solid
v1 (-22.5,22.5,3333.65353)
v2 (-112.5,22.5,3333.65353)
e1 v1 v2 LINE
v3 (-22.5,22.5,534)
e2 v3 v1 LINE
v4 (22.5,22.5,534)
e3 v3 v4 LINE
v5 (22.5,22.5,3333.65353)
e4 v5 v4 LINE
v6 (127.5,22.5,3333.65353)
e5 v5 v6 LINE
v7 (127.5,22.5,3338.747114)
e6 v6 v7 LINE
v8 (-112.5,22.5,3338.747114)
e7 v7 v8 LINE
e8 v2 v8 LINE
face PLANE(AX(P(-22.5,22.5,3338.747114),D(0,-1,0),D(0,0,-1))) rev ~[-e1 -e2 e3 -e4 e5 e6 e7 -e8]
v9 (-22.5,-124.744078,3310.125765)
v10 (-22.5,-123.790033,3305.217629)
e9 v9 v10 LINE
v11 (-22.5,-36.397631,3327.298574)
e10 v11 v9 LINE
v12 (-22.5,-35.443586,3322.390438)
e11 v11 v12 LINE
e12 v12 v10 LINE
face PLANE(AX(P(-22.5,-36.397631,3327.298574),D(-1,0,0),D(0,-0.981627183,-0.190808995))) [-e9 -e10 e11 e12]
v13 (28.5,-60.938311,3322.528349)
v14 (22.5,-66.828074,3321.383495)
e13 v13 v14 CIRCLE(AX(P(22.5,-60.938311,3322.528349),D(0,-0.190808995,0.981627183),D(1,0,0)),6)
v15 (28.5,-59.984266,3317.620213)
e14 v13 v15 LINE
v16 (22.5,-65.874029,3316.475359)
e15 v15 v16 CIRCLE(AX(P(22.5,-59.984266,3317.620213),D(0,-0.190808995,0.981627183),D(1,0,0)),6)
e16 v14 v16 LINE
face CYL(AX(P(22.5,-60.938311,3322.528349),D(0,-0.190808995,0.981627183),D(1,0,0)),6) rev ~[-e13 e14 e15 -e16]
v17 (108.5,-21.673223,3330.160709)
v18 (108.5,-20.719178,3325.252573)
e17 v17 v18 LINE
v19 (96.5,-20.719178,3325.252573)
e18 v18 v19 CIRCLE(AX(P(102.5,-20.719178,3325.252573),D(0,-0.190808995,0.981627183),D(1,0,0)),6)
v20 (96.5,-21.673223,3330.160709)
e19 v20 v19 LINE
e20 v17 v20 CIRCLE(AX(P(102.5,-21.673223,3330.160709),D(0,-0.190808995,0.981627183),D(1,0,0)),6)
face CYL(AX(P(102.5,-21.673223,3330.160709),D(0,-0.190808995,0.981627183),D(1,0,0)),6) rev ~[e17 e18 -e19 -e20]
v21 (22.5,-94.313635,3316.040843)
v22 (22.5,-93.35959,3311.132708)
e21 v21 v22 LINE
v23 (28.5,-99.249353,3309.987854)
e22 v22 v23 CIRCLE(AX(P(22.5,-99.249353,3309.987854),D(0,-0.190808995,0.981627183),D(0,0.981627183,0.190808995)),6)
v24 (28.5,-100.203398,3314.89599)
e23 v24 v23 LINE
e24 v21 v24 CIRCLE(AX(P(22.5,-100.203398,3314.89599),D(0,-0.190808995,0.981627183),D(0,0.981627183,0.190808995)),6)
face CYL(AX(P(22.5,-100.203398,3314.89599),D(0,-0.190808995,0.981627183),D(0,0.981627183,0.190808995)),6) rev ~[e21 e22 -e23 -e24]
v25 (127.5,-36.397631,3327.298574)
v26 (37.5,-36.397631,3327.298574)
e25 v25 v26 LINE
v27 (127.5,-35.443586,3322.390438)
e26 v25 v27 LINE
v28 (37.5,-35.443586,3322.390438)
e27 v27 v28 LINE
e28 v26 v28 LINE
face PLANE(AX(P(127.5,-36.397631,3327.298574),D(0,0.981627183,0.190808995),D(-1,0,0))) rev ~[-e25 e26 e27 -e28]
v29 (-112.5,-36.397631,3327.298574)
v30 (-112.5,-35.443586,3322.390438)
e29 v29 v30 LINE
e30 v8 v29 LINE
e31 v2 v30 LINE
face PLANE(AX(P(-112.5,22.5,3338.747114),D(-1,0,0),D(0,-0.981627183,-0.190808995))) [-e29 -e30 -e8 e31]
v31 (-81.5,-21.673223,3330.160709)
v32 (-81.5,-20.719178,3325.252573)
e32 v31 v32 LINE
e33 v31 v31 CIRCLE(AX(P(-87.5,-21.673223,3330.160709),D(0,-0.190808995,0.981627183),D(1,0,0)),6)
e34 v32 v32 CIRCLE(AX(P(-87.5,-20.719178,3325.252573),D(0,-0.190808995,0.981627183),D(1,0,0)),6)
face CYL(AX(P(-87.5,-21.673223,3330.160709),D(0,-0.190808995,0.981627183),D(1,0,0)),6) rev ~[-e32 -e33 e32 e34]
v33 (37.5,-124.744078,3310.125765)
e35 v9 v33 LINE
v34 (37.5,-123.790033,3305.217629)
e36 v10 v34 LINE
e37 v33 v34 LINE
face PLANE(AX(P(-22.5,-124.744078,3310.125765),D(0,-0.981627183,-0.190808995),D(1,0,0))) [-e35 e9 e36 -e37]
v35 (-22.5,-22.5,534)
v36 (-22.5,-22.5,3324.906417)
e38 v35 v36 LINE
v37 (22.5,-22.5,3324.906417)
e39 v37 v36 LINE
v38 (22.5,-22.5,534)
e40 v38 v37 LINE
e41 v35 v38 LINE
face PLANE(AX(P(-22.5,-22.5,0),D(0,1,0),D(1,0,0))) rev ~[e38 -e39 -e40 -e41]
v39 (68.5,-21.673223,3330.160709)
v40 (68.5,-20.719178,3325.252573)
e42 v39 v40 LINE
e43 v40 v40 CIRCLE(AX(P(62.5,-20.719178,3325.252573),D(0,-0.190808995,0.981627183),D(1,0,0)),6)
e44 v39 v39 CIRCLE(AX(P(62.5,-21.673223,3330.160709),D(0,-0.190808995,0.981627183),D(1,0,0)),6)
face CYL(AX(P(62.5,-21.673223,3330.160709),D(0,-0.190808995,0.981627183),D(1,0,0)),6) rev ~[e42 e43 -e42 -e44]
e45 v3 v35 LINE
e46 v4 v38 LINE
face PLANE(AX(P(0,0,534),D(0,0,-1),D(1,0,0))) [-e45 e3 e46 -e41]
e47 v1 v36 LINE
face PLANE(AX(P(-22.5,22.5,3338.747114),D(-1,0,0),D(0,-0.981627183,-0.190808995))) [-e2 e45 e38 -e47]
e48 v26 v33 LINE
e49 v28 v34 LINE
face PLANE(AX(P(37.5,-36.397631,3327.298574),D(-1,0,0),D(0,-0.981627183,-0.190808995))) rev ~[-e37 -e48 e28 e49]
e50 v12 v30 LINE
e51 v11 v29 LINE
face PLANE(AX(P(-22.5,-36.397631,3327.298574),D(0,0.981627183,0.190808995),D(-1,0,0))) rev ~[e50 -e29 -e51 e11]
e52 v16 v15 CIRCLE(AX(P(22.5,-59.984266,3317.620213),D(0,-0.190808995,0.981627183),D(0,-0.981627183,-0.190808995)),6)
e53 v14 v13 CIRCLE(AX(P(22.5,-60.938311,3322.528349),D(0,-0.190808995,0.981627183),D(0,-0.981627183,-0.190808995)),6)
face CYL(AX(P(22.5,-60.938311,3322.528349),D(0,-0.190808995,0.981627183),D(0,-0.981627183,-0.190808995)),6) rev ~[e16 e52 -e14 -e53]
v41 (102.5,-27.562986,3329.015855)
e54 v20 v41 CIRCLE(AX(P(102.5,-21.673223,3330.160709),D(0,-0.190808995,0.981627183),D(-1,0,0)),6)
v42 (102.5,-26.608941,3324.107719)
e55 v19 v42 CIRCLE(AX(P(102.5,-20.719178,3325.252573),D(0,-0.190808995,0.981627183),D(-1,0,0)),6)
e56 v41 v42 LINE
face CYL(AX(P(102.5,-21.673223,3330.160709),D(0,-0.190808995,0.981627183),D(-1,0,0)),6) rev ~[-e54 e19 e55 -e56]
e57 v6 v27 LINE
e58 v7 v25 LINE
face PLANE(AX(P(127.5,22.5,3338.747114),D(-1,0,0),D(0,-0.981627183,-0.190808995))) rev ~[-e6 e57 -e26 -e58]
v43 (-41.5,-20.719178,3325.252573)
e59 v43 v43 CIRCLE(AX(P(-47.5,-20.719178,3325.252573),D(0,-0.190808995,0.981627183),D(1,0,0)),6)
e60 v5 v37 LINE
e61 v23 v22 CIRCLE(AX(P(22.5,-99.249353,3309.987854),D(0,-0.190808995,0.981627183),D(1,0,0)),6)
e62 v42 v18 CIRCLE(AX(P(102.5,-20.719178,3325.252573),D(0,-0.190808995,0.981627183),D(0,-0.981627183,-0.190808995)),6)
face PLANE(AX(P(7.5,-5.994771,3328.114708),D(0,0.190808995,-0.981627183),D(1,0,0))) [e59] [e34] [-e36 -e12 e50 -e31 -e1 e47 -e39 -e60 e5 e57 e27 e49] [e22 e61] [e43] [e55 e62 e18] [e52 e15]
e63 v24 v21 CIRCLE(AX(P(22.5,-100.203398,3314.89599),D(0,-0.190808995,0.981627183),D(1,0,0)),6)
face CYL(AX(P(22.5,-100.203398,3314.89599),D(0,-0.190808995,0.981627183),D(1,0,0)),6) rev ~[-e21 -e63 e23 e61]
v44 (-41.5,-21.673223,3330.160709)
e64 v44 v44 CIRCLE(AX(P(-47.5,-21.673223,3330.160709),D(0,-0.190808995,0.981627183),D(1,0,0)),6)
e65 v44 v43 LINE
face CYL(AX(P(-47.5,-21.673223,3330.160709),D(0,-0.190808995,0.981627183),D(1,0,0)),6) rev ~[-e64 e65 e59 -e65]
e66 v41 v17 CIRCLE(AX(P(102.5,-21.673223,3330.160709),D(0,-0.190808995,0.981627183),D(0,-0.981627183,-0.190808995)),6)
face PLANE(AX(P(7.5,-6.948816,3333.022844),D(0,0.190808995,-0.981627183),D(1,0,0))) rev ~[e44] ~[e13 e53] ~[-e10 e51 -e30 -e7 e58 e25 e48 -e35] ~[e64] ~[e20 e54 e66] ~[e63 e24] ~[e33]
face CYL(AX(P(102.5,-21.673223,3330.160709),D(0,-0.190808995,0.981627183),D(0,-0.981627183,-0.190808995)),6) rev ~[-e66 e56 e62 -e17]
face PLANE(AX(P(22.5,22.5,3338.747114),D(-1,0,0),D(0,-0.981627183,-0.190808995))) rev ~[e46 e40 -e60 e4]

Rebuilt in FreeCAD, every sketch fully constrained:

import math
import FreeCAD as App
import Part
import Sketcher
Q = App.Units.Quantity

doc = App.newDocument("Part")
body = doc.addObject("PartDesign::Body", "Body")

# Sketch on XY plane
sketch1 = body.newObject("Sketcher::SketchObject", "Sketch")
sketch1.AttachmentSupport = (doc.getObject("XY_Plane"), [""])
sketch1.MapMode = "FlatFace"
sketch1.addGeometry([
    Part.LineSegment(App.Vector(-22, 22, 0), App.Vector(-22, -22, 0)),
    Part.LineSegment(App.Vector(-22, -22, 0), App.Vector(22, -22, 0)),
    Part.LineSegment(App.Vector(22, -22, 0), App.Vector(22, 22, 0)),
    Part.LineSegment(App.Vector(22, 22, 0), App.Vector(-22, 22, 0)),
], False)
sketch1.addConstraint([
    Sketcher.Constraint("Coincident", 0, 2, 1, 1),
    Sketcher.Constraint("Coincident", 1, 2, 2, 1),
    Sketcher.Constraint("Coincident", 2, 2, 3, 1),
    Sketcher.Constraint("Coincident", 3, 2, 0, 1),
    Sketcher.Constraint("Vertical", 0),
    Sketcher.Constraint("Horizontal", 1),
    Sketcher.Constraint("Vertical", 2),
    Sketcher.Constraint("Horizontal", 3),
    Sketcher.Constraint("Symmetric", 0, 2, 2, 2, -1, 1),
    Sketcher.Constraint("Equal", 3, 0),
    Sketcher.Constraint("DistanceX", 1, 1, 1, 2, Q("45 mm")),
])
pad1 = body.newObject("PartDesign::Pad", "Pad")
pad1.Profile = sketch1
pad1.Length = 3330

# Sketch on an angled plane
sketch2 = body.newObject("Sketcher::SketchObject", "Sketch001")
sketch2.Placement = App.Placement(App.Vector(0, -624.53916, 3212.975442), App.Rotation(App.Vector(1, 0, 0), App.Vector(0, -0.981627183, -0.190808995), App.Vector(0, 0.190808995, -0.981627183), "ZXY"))
sketch2.addGeometry([
    Part.LineSegment(App.Vector(-22, -613, 0), App.Vector(-22, -659, 0)),
    Part.LineSegment(App.Vector(-22, -659, 0), App.Vector(22, -659, 0)),
    Part.LineSegment(App.Vector(22, -659, 0), App.Vector(22, -613, 0)),
    Part.LineSegment(App.Vector(22, -613, 0), App.Vector(-22, -613, 0)),
], False)
sketch2.addConstraint([
    Sketcher.Constraint("Coincident", 0, 2, 1, 1),
    Sketcher.Constraint("Coincident", 1, 2, 2, 1),
    Sketcher.Constraint("Coincident", 2, 2, 3, 1),
    Sketcher.Constraint("Coincident", 3, 2, 0, 1),
    Sketcher.Constraint("Vertical", 0),
    Sketcher.Constraint("Horizontal", 1),
    Sketcher.Constraint("Vertical", 2),
    Sketcher.Constraint("Horizontal", 3),
    Sketcher.Constraint("DistanceX", 1, 1, 1, 2, Q("45 mm")),
    Sketcher.Constraint("DistanceX", 0, 2, -1, 1, Q("22.5 mm")),
    Sketcher.Constraint("DistanceY", 0, 2, 0, 1, Q("45.842251 mm")),
    Sketcher.Constraint("DistanceY", 0, 2, -1, 1, Q("659.149594 mm")),
])
pad2 = body.newObject("PartDesign::Pad", "Pad001")
pad2.Profile = sketch2
pad2.Length = 25

# Sketch on an angled plane
sketch3 = body.newObject("Sketcher::SketchObject", "Sketch002")
sketch3.Placement = App.Placement(App.Vector(0, -624.53916, 3212.975442), App.Rotation(App.Vector(1, 0, 0), App.Vector(0, -0.981627183, -0.190808995), App.Vector(0, 0.190808995, -0.981627183), "ZXY"))
sketch3.addGeometry([
    Part.LineSegment(App.Vector(-112, -599, 0), App.Vector(-112, -659, 0)),  # 0
    Part.LineSegment(App.Vector(-112, -659, 0), App.Vector(128, -659, 0)),  # 1
    Part.LineSegment(App.Vector(128, -659, 0), App.Vector(128, -599, 0)),  # 2
    Part.LineSegment(App.Vector(128, -599, 0), App.Vector(38, -599, 0)),  # 3
    Part.LineSegment(App.Vector(38, -599, 0), App.Vector(38, -509, 0)),  # 4
    Part.LineSegment(App.Vector(38, -509, 0), App.Vector(-22, -509, 0)),  # 5
    Part.LineSegment(App.Vector(-22, -509, 0), App.Vector(-22, -599, 0)),  # 6
    Part.LineSegment(App.Vector(-22, -599, 0), App.Vector(-112, -599, 0)),  # 7
], False)
sketch3.addConstraint([
    Sketcher.Constraint("Coincident", 0, 2, 1, 1),
    Sketcher.Constraint("Coincident", 1, 2, 2, 1),
    Sketcher.Constraint("Coincident", 2, 2, 3, 1),
    Sketcher.Constraint("Coincident", 3, 2, 4, 1),
    Sketcher.Constraint("Coincident", 4, 2, 5, 1),
    Sketcher.Constraint("Coincident", 5, 2, 6, 1),
    Sketcher.Constraint("Coincident", 6, 2, 7, 1),
    Sketcher.Constraint("Coincident", 7, 2, 0, 1),
    Sketcher.Constraint("Vertical", 0),
    Sketcher.Constraint("Horizontal", 1),
    Sketcher.Constraint("Vertical", 2),
    Sketcher.Constraint("Horizontal", 3),
    Sketcher.Constraint("Vertical", 4),
    Sketcher.Constraint("Horizontal", 5),
    Sketcher.Constraint("Vertical", 6),
    Sketcher.Constraint("Horizontal", 7),
    Sketcher.Constraint("Horizontal", 3, 2, 6, 2),
    Sketcher.Constraint("Equal", 3, 7),
    Sketcher.Constraint("Equal", 5, 0),
    Sketcher.Constraint("Equal", 7, 4),
    Sketcher.Constraint("DistanceX", 1, 1, 1, 2, Q("240 mm")),
    Sketcher.Constraint("DistanceX", 3, 2, 3, 1, Q("90 mm")),
    Sketcher.Constraint("DistanceX", 0, 2, -1, 1, Q("112.5 mm")),
    Sketcher.Constraint("DistanceY", 0, 2, -1, 1, Q("659.149594 mm")),
])
pad3 = body.newObject("PartDesign::Pad", "Pad002")
pad3.Profile = sketch3
pad3.Length = 5

# Sketch on an angled plane
sketch4 = body.newObject("Sketcher::SketchObject", "Sketch003")
sketch4.Placement = App.Placement(App.Vector(0, -624.53916, 3212.975442), App.Rotation(App.Vector(1, 0, 0), App.Vector(0, 0.981627183, 0.190808995), App.Vector(0, -0.190808995, 0.981627183), "ZXY"))
sketch4.addGeometry([
    Part.ArcOfCircle(Part.Circle(App.Vector(22, 534, 0), App.Vector(0, 0, 1), 6), math.radians(90), math.radians(360)),  # 0
    Part.ArcOfCircle(Part.Circle(App.Vector(22, 534, 0), App.Vector(0, 0, 1), 6), math.radians(0), math.radians(90)),  # 1
    Part.ArcOfCircle(Part.Circle(App.Vector(22, 574, 0), App.Vector(0, 0, 1), 6), math.radians(0), math.radians(270)),  # 2
    Part.ArcOfCircle(Part.Circle(App.Vector(22, 574, 0), App.Vector(0, 0, 1), 6), math.radians(-90), math.radians(0)),  # 3
    Part.ArcOfCircle(Part.Circle(App.Vector(102, 614, 0), App.Vector(0, 0, 1), 6), math.radians(180), math.radians(270)),  # 4
    Part.ArcOfCircle(Part.Circle(App.Vector(102, 614, 0), App.Vector(0, 0, 1), 6), math.radians(-90), math.radians(0)),  # 5
    Part.ArcOfCircle(Part.Circle(App.Vector(102, 614, 0), App.Vector(0, 0, 1), 6), math.radians(0), math.radians(180)),  # 6
    Part.Circle(App.Vector(62, 614, 0), App.Vector(0, 0, 1), 6),  # 7
    Part.Circle(App.Vector(-48, 614, 0), App.Vector(0, 0, 1), 6),  # 8
    Part.Circle(App.Vector(-88, 614, 0), App.Vector(0, 0, 1), 6),  # 9
], False)
sketch4.addConstraint([
    Sketcher.Constraint("Tangent", 0, 1, 1, 2),
    Sketcher.Constraint("Coincident", 1, 1, 0, 2),
    Sketcher.Constraint("Tangent", 2, 1, 3, 2),
    Sketcher.Constraint("Coincident", 3, 1, 2, 2),
    Sketcher.Constraint("Tangent", 4, 2, 5, 1),
    Sketcher.Constraint("Tangent", 5, 2, 6, 1),
    Sketcher.Constraint("Tangent", 6, 2, 4, 1),
    Sketcher.Constraint("Equal", 1, 2),
    Sketcher.Constraint("Equal", 3, 4),
    Sketcher.Constraint("Equal", 6, 7),
    Sketcher.Constraint("Equal", 7, 8),
    Sketcher.Constraint("Equal", 8, 9),
    Sketcher.Constraint("Horizontal", 6, 3, 7, 3),
    Sketcher.Constraint("Horizontal", 7, 3, 8, 3),
    Sketcher.Constraint("Horizontal", 8, 3, 9, 3),
    Sketcher.Constraint("Horizontal", 0, 3, 1, 1),
    Sketcher.Constraint("Horizontal", 3, 3, 2, 1),
    Sketcher.Constraint("Horizontal", 9, 3, 5, 2),
    Sketcher.Constraint("Horizontal", 5, 2, 6, 2),
    Sketcher.Constraint("Vertical", 1, 3, 2, 3),
    Sketcher.Constraint("Vertical", 3, 3, 0, 1),
    Sketcher.Constraint("Vertical", 0, 1, 3, 1),
    Sketcher.Constraint("Vertical", 6, 3, 4, 2),
    Sketcher.Constraint("Diameter", 7, Q("12 mm")),
    Sketcher.Constraint("DistanceY", 0, 3, 2, 3, Q("40 mm")),
    Sketcher.Constraint("DistanceX", 2, 3, 4, 3, Q("80 mm")),
    Sketcher.Constraint("DistanceY", 2, 3, 4, 3, Q("40 mm")),
    Sketcher.Constraint("DistanceX", 7, 3, 4, 3, Q("40 mm")),
    Sketcher.Constraint("DistanceX", 8, 3, 2, 3, Q("70 mm")),
    Sketcher.Constraint("DistanceX", 9, 3, 8, 3, Q("40 mm")),
    Sketcher.Constraint("DistanceX", -1, 1, 0, 3, Q("22.5 mm")),
    Sketcher.Constraint("DistanceY", -1, 1, 0, 3, Q("534.149594 mm")),
])
pocket1 = body.newObject("PartDesign::Pocket", "Pocket")
pocket1.Profile = sketch4
pocket1.Length = 25

# Sketch on XY plane
sketch5 = body.newObject("Sketcher::SketchObject", "Sketch004")
sketch5.AttachmentSupport = (doc.getObject("XY_Plane"), [""])
sketch5.MapMode = "FlatFace"
sketch5.addGeometry([
    Part.LineSegment(App.Vector(-22.5, 27.3, 0), App.Vector(-22.5, 22.5, 0)),
    Part.LineSegment(App.Vector(-22.5, 22.5, 0), App.Vector(127.5, 22.5, 0)),
    Part.LineSegment(App.Vector(127.5, 22.5, 0), App.Vector(127.5, 27.3, 0)),
    Part.LineSegment(App.Vector(127.5, 27.3, 0), App.Vector(-22.5, 27.3, 0)),
], False)
sketch5.addConstraint([
    Sketcher.Constraint("Coincident", 0, 2, 1, 1),
    Sketcher.Constraint("Coincident", 1, 2, 2, 1),
    Sketcher.Constraint("Coincident", 2, 2, 3, 1),
    Sketcher.Constraint("Coincident", 3, 2, 0, 1),
    Sketcher.Constraint("Vertical", 0),
    Sketcher.Constraint("Horizontal", 1),
    Sketcher.Constraint("Vertical", 2),
    Sketcher.Constraint("Horizontal", 3),
    Sketcher.Constraint("DistanceX", 1, 1, 1, 2, Q("150 mm")),
    Sketcher.Constraint("DistanceX", 0, 2, -1, 1, Q("22.5 mm")),
    Sketcher.Constraint("DistanceY", -1, 1, 0, 2, Q("22.5 mm")),
    Sketcher.Constraint("DistanceY", 0, 2, 0, 1, Q("4.770225 mm")),
])
pocket2 = body.newObject("PartDesign::Pocket", "Pocket001")
pocket2.Profile = sketch5
pocket2.Length = 3358.687162
pocket2.Reversed = True

# Sketch on YZ plane
sketch6 = body.newObject("Sketcher::SketchObject", "Sketch005")
sketch6.AttachmentSupport = (doc.getObject("YZ_Plane"), [""])
sketch6.MapMode = "FlatFace"
sketch6.AttachmentOffset = App.Placement(App.Vector(0, 0, -22.5), App.Rotation())
sketch6.addGeometry([
    Part.LineSegment(App.Vector(22.5, 3333.7, 0), App.Vector(23.5, 3333.8, 0)),
    Part.LineSegment(App.Vector(23.5, 3333.8, 0), App.Vector(22.5, 3338.7, 0)),
    Part.LineSegment(App.Vector(22.5, 3338.7, 0), App.Vector(22.5, 3333.7, 0)),
], False)
sketch6.addConstraint([
    Sketcher.Constraint("Coincident", 0, 2, 1, 1),
    Sketcher.Constraint("Coincident", 1, 2, 2, 1),
    Sketcher.Constraint("Coincident", 2, 2, 0, 1),
    Sketcher.Constraint("Vertical", 2),
    Sketcher.Constraint("Perpendicular", 0, 1),
    Sketcher.Constraint("Angle", 0, Q("11 deg")),
    Sketcher.Constraint("Distance", 1, Q("5 mm")),
    Sketcher.Constraint("DistanceX", -1, 1, 1, 2, Q("22.5 mm")),
    Sketcher.Constraint("DistanceY", -1, 1, 2, 2, Q("3333.65353 mm")),
])
pocket3 = body.newObject("PartDesign::Pocket", "Pocket002")
pocket3.Profile = sketch6
pocket3.Length = 111

# Sketch on XY plane
sketch7 = body.newObject("Sketcher::SketchObject", "Sketch006")
sketch7.AttachmentSupport = (doc.getObject("XY_Plane"), [""])
sketch7.MapMode = "FlatFace"
sketch7.addGeometry([
    Part.LineSegment(App.Vector(-22, -22, 0), App.Vector(-22, 22, 0)),
    Part.LineSegment(App.Vector(-22, 22, 0), App.Vector(22, 22, 0)),
    Part.LineSegment(App.Vector(22, 22, 0), App.Vector(22, -22, 0)),
    Part.LineSegment(App.Vector(22, -22, 0), App.Vector(-22, -22, 0)),
], False)
sketch7.addConstraint([
    Sketcher.Constraint("Coincident", 0, 2, 1, 1),
    Sketcher.Constraint("Coincident", 1, 2, 2, 1),
    Sketcher.Constraint("Coincident", 2, 2, 3, 1),
    Sketcher.Constraint("Coincident", 3, 2, 0, 1),
    Sketcher.Constraint("Vertical", 0),
    Sketcher.Constraint("Horizontal", 1),
    Sketcher.Constraint("Vertical", 2),
    Sketcher.Constraint("Horizontal", 3),
    Sketcher.Constraint("Symmetric", 0, 2, 2, 2, -1, 1),
    Sketcher.Constraint("Equal", 3, 0),
    Sketcher.Constraint("DistanceX", 1, 1, 1, 2, Q("45 mm")),
])
pocket4 = body.newObject("PartDesign::Pocket", "Pocket003")
pocket4.Profile = sketch7
pocket4.Length = 534
pocket4.Reversed = True

doc.recompute()
